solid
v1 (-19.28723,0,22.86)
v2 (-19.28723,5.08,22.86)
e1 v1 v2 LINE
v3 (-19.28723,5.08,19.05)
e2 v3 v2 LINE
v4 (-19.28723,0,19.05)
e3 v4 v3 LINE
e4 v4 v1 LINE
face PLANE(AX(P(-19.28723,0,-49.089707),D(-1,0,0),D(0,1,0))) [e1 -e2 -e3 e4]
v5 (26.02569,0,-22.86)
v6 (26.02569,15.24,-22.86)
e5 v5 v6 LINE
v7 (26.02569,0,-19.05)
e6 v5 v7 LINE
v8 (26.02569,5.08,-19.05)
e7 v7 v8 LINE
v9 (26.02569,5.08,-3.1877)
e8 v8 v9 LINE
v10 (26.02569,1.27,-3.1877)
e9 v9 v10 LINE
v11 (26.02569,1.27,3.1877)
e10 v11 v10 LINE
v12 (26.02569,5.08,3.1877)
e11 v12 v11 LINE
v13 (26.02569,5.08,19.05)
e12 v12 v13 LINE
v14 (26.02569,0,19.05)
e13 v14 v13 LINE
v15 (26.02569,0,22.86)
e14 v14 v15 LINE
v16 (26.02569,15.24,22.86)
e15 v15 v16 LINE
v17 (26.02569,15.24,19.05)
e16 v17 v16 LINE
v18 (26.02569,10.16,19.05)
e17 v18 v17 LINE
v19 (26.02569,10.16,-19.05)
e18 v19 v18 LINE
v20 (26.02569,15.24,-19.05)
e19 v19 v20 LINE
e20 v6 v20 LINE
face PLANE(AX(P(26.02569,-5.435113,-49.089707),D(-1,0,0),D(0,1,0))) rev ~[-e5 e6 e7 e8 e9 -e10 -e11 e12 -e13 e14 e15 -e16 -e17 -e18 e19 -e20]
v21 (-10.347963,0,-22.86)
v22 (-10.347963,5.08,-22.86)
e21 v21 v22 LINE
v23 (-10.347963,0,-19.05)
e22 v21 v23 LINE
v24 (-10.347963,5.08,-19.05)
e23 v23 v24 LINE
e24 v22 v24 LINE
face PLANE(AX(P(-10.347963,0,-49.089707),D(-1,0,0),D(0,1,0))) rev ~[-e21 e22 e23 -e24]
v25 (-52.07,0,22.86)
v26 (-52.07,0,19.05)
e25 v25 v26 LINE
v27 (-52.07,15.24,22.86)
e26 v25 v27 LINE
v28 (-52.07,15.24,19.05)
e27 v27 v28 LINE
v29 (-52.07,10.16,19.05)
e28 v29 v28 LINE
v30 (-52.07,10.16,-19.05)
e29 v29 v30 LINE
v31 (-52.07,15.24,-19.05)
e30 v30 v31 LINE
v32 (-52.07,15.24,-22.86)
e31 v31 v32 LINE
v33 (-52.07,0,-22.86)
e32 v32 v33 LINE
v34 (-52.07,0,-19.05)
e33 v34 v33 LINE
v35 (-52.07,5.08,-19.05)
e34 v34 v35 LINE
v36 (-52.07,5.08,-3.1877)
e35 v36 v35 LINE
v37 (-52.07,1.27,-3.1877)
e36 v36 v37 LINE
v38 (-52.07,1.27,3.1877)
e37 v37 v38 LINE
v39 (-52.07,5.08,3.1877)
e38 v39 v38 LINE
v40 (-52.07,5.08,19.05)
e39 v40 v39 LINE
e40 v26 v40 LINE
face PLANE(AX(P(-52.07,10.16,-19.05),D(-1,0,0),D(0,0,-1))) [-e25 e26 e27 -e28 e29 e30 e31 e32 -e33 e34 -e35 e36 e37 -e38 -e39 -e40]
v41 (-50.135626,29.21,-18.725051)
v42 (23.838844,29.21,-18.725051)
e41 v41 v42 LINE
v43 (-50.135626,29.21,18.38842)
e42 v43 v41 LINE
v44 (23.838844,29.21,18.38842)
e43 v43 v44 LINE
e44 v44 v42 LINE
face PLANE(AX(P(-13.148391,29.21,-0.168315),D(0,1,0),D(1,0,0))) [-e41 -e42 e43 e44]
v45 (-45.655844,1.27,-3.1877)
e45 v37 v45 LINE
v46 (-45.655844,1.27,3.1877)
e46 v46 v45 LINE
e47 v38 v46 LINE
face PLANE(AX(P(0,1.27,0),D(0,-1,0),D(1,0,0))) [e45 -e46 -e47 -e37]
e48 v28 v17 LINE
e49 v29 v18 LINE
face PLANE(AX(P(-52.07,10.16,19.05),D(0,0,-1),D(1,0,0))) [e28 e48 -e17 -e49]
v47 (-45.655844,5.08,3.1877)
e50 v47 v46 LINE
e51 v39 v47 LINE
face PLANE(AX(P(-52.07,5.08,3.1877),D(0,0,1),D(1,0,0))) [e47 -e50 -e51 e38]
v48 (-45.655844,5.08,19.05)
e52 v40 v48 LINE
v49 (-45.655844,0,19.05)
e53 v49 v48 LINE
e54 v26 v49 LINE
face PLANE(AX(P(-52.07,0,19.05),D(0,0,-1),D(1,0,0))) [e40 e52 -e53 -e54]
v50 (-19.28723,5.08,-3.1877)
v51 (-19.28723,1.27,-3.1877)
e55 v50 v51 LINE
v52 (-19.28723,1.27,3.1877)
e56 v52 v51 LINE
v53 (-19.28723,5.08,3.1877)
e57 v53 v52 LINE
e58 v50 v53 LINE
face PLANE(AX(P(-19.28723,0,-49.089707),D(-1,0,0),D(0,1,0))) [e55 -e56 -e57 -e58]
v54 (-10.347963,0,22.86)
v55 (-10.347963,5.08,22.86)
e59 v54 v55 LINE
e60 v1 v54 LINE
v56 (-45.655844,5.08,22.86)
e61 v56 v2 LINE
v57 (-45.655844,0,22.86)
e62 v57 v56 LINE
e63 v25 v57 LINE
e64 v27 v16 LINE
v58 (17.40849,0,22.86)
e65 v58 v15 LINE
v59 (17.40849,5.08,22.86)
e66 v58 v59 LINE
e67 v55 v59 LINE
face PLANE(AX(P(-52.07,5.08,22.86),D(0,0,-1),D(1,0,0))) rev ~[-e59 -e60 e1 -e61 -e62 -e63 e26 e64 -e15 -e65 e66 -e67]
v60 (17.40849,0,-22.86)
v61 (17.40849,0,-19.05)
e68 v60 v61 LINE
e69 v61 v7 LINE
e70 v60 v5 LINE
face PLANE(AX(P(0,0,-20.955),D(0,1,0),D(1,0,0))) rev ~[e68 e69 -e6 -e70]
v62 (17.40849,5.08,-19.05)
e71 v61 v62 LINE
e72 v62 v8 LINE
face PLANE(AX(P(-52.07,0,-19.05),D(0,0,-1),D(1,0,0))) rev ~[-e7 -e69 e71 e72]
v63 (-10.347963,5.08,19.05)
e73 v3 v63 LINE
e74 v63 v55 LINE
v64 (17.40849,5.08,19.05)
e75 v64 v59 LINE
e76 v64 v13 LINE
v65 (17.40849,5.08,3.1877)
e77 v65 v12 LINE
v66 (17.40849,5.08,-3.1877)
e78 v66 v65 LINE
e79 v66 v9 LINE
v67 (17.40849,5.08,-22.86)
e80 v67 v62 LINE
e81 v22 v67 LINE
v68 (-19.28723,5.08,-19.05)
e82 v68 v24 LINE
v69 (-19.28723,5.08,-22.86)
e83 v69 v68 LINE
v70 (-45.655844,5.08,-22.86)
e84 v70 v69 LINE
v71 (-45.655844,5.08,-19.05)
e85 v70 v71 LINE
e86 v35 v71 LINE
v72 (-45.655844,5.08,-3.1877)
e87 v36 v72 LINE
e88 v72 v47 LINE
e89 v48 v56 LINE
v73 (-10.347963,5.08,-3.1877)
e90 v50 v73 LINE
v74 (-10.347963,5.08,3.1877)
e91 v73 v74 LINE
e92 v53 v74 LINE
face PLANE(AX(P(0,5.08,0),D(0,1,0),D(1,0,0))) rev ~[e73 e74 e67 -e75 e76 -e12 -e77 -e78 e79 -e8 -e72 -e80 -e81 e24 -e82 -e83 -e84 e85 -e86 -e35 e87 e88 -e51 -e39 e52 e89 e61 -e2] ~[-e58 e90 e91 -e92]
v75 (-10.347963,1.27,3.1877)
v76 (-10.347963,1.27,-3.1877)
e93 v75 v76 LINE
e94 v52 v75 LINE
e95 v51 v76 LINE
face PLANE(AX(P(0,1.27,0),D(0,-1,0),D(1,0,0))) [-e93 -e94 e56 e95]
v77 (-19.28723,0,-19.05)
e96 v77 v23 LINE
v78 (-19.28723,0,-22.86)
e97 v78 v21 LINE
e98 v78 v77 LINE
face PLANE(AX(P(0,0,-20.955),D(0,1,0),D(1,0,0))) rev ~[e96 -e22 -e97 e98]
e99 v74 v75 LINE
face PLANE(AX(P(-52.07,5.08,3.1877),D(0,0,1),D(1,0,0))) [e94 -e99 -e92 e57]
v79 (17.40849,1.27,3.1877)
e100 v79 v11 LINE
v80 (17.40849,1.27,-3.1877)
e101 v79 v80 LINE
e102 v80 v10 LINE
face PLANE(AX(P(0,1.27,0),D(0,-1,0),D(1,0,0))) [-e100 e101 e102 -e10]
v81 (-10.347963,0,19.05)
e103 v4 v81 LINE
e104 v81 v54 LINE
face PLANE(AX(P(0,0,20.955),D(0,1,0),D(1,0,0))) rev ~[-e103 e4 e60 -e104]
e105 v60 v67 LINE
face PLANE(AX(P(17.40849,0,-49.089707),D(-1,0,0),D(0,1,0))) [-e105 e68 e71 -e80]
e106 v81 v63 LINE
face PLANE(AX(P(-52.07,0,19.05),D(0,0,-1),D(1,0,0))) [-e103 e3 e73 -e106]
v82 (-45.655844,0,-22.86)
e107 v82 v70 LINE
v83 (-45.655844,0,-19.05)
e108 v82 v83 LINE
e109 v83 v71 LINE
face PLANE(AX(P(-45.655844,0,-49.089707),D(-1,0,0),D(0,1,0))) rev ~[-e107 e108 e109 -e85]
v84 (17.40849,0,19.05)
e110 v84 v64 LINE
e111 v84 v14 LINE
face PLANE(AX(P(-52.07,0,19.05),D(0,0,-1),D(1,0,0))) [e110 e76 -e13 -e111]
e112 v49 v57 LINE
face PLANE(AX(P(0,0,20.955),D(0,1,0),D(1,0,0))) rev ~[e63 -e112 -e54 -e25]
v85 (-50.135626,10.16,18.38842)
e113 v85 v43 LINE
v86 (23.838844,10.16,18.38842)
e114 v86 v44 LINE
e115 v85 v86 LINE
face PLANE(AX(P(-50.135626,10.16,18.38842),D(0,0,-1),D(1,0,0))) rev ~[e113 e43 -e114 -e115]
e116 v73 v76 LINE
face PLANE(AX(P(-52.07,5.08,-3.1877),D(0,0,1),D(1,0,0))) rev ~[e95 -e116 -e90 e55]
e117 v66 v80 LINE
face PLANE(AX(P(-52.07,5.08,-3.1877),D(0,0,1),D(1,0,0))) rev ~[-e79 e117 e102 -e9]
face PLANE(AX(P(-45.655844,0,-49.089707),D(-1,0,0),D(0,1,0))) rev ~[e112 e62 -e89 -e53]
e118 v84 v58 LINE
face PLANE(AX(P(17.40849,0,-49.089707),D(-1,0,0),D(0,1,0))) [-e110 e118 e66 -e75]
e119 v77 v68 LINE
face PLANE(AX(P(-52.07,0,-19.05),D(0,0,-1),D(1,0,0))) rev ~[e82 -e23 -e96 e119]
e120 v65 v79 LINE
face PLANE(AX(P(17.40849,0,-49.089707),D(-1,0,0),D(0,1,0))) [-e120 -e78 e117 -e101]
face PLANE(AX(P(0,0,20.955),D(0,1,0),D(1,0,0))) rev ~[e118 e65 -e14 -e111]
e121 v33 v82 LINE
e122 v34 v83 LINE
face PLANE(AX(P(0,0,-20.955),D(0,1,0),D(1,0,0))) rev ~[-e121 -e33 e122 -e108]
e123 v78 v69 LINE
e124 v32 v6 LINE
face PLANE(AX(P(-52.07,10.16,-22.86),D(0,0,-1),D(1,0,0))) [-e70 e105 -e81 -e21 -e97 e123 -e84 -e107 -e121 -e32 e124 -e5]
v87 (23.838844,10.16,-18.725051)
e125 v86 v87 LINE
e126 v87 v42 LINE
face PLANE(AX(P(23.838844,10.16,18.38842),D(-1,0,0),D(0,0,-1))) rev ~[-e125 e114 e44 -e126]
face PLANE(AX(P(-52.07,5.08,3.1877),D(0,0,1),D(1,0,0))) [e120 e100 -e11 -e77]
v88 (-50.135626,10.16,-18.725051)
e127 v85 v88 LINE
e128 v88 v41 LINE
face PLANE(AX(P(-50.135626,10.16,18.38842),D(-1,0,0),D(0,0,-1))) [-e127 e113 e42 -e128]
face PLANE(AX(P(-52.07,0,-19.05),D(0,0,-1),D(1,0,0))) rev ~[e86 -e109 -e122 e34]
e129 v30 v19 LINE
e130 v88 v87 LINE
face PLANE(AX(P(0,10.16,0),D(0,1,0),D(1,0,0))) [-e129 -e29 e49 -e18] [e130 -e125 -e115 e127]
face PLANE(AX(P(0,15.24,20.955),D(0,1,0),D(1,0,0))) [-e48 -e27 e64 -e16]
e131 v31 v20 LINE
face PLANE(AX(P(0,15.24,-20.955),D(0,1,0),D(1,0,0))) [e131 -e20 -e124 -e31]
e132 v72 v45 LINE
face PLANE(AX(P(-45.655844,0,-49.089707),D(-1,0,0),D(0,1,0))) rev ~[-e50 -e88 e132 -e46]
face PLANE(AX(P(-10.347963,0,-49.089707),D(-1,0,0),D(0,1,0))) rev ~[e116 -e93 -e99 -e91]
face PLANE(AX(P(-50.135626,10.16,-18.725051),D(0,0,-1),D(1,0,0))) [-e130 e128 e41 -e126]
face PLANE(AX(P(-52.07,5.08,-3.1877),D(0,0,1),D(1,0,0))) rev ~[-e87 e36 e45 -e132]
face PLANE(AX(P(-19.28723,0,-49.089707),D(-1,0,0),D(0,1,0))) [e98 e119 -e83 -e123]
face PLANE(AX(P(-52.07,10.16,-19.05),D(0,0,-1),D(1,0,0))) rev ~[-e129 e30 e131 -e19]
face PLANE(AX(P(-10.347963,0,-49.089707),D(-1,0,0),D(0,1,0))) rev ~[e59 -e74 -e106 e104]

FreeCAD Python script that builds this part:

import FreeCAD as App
import Part
import Sketcher
Q = App.Units.Quantity

doc = App.newDocument("Part")
body = doc.addObject("PartDesign::Body", "Body")

# Sketch on XZ plane
sketch1 = doc.addObject("Sketcher::SketchObject", "Sketch")
body.addObject(sketch1)
sketch1.AttachmentSupport = (doc.XZ_Plane, [""])
sketch1.MapMode = "FlatFace"
sketch1.addGeometry([
    Part.LineSegment(App.Vector(-52.1, 19.1, 0), App.Vector(-52.1, 22.9, 0)),
    Part.LineSegment(App.Vector(-52.1, 22.9, 0), App.Vector(52.1, 22.9, 0)),
    Part.LineSegment(App.Vector(52.1, 22.9, 0), App.Vector(52.1, 19.1, 0)),
    Part.LineSegment(App.Vector(52.1, 19.1, 0), App.Vector(-52.1, 19.1, 0)),
], False)
sketch1.addConstraint([
    Sketcher.Constraint("Coincident", 0, 2, 1, 1),
    Sketcher.Constraint("Coincident", 1, 2, 2, 1),
    Sketcher.Constraint("Coincident", 2, 2, 3, 1),
    Sketcher.Constraint("Coincident", 3, 2, 0, 1),
    Sketcher.Constraint("Vertical", 0),
    Sketcher.Constraint("Horizontal", 1),
    Sketcher.Constraint("Vertical", 2),
    Sketcher.Constraint("Horizontal", 3),
    Sketcher.Constraint("DistanceX", 1, 1, 1, 2, Q("4.1 in")),
    Sketcher.Constraint("DistanceY", 0, 1, 0, 2, Q("0.15 in")),
    Sketcher.Constraint("DistanceY", -1, 1, 0, 2, Q("0.9 in")),
    Sketcher.Constraint("DistanceX", 0, 2, -1, 1, Q("2.05 in")),
])
pad1 = doc.addObject("PartDesign::Pad", "Pad")
body.addObject(pad1)
pad1.Profile = sketch1
pad1.Length = Q("0.2 in")
pad1.Reversed = True
body2 = doc.addObject("PartDesign::Body", "Body001")

# Sketch on XZ plane
sketch2 = doc.addObject("Sketcher::SketchObject", "Sketch001")
body2.addObject(sketch2)
sketch2.AttachmentSupport = (doc.getObject("XZ_Plane001"), [""])
sketch2.MapMode = "FlatFace"
sketch2.addGeometry([
    Part.LineSegment(App.Vector(-52.1, -22.9, 0), App.Vector(-52.1, -19.1, 0)),
    Part.LineSegment(App.Vector(-52.1, -19.1, 0), App.Vector(52.1, -19.1, 0)),
    Part.LineSegment(App.Vector(52.1, -19.1, 0), App.Vector(52.1, -22.9, 0)),
    Part.LineSegment(App.Vector(52.1, -22.9, 0), App.Vector(-52.1, -22.9, 0)),
], False)
sketch2.addConstraint([
    Sketcher.Constraint("Coincident", 0, 2, 1, 1),
    Sketcher.Constraint("Coincident", 1, 2, 2, 1),
    Sketcher.Constraint("Coincident", 2, 2, 3, 1),
    Sketcher.Constraint("Coincident", 3, 2, 0, 1),
    Sketcher.Constraint("Vertical", 0),
    Sketcher.Constraint("Horizontal", 1),
    Sketcher.Constraint("Vertical", 2),
    Sketcher.Constraint("Horizontal", 3),
    Sketcher.Constraint("DistanceX", 1, 1, 1, 2, Q("4.1 in")),
    Sketcher.Constraint("DistanceY", 0, 1, 0, 2, Q("0.15 in")),
    Sketcher.Constraint("DistanceY", 2, 2, -1, 1, Q("0.9 in")),
    Sketcher.Constraint("DistanceX", 0, 2, -1, 1, Q("2.05 in")),
])
pad2 = doc.addObject("PartDesign::Pad", "Pad001")
body2.addObject(pad2)
pad2.Profile = sketch2
pad2.Length = Q("0.2 in")
pad2.Reversed = True
body.AllowCompound = True
doc.recompute()

boolean = doc.addObject("PartDesign::Boolean", "Boolean")
body.addObject(boolean)
boolean.Type = "Fuse"
boolean.addObjects([body2])

# Sketch on XZ plane
sketch3 = doc.addObject("Sketcher::SketchObject", "Sketch002")
body.addObject(sketch3)
sketch3.AttachmentSupport = (doc.XZ_Plane, [""])
sketch3.MapMode = "FlatFace"
sketch3.AttachmentOffset = App.Placement(App.Vector(0, 0, -0.2 * 25.4), App.Rotation())
sketch3.addGeometry([
    Part.LineSegment(App.Vector(-52, -23, 0), App.Vector(-52, 23, 0)),
    Part.LineSegment(App.Vector(-52, 23, 0), App.Vector(52, 23, 0)),
    Part.LineSegment(App.Vector(52, 23, 0), App.Vector(52, -23, 0)),
    Part.LineSegment(App.Vector(52, -23, 0), App.Vector(-52, -23, 0)),
], False)
sketch3.addConstraint([
    Sketcher.Constraint("Coincident", 0, 2, 1, 1),
    Sketcher.Constraint("Coincident", 1, 2, 2, 1),
    Sketcher.Constraint("Coincident", 2, 2, 3, 1),
    Sketcher.Constraint("Coincident", 3, 2, 0, 1),
    Sketcher.Constraint("Vertical", 0),
    Sketcher.Constraint("Horizontal", 1),
    Sketcher.Constraint("Vertical", 2),
    Sketcher.Constraint("Horizontal", 3),
    Sketcher.Constraint("Symmetric", 0, 2, 2, 2, -1, 1),
    Sketcher.Constraint("DistanceX", 1, 1, 1, 2, Q("4.1 in")),
    Sketcher.Constraint("DistanceY", 0, 1, 0, 2, Q("1.8 in")),
])
pad3 = doc.addObject("PartDesign::Pad", "Pad002")
body.addObject(pad3)
pad3.Profile = sketch3
pad3.Length = Q("0.2 in")
pad3.Reversed = True

# Sketch on XZ plane
sketch4 = doc.addObject("Sketcher::SketchObject", "Sketch003")
body.addObject(sketch4)
sketch4.AttachmentSupport = (doc.XZ_Plane, [""])
sketch4.MapMode = "FlatFace"
sketch4.AttachmentOffset = App.Placement(App.Vector(0, 0, -0.4 * 25.4), App.Rotation())
sketch4.addGeometry([
    Part.LineSegment(App.Vector(-52.1, -22.9, 0), App.Vector(-52.1, -19.1, 0)),  # 0
    Part.LineSegment(App.Vector(-52.1, -19.1, 0), App.Vector(52.1, -19.1, 0)),  # 1
    Part.LineSegment(App.Vector(52.1, -19.1, 0), App.Vector(52.1, -22.9, 0)),  # 2
    Part.LineSegment(App.Vector(52.1, -22.9, 0), App.Vector(-52.1, -22.9, 0)),  # 3
    Part.LineSegment(App.Vector(-52.1, 19.1, 0), App.Vector(-52.1, 22.9, 0)),  # 4
    Part.LineSegment(App.Vector(-52.1, 22.9, 0), App.Vector(52.1, 22.9, 0)),  # 5
    Part.LineSegment(App.Vector(52.1, 22.9, 0), App.Vector(52.1, 19.1, 0)),  # 6
    Part.LineSegment(App.Vector(52.1, 19.1, 0), App.Vector(-52.1, 19.1, 0)),  # 7
], False)
sketch4.addConstraint([
    Sketcher.Constraint("Coincident", 0, 2, 1, 1),
    Sketcher.Constraint("Coincident", 1, 2, 2, 1),
    Sketcher.Constraint("Coincident", 2, 2, 3, 1),
    Sketcher.Constraint("Coincident", 3, 2, 0, 1),
    Sketcher.Constraint("Coincident", 4, 2, 5, 1),
    Sketcher.Constraint("Coincident", 5, 2, 6, 1),
    Sketcher.Constraint("Coincident", 6, 2, 7, 1),
    Sketcher.Constraint("Coincident", 7, 2, 4, 1),
    Sketcher.Constraint("Vertical", 0),
    Sketcher.Constraint("Horizontal", 1),
    Sketcher.Constraint("Vertical", 2),
    Sketcher.Constraint("Horizontal", 3),
    Sketcher.Constraint("Vertical", 4),
    Sketcher.Constraint("Horizontal", 5),
    Sketcher.Constraint("Vertical", 6),
    Sketcher.Constraint("Horizontal", 7),
    Sketcher.Constraint("Symmetric", 2, 2, 4, 2, -1, 1),
    Sketcher.Constraint("Symmetric", 0, 2, 6, 2, -1, 1),
    Sketcher.Constraint("Vertical", 3, 2, 4, 2),
    Sketcher.Constraint("DistanceX", 1, 1, 1, 2, Q("4.1 in")),
    Sketcher.Constraint("DistanceY", 0, 1, 0, 2, Q("0.15 in")),
    Sketcher.Constraint("DistanceY", 2, 2, -1, 1, Q("0.9 in")),
])
pad4 = doc.addObject("PartDesign::Pad", "Pad003")
body.addObject(pad4)
pad4.Profile = sketch4
pad4.Length = Q("0.2 in")
pad4.Reversed = True

# Sketch on XZ plane
sketch5 = doc.addObject("Sketcher::SketchObject", "Sketch004")
body.addObject(sketch5)
sketch5.AttachmentSupport = (doc.XZ_Plane, [""])
sketch5.MapMode = "FlatFace"
sketch5.AttachmentOffset = App.Placement(App.Vector(0, 0, -0.2 * 25.4), App.Rotation())
sketch5.addGeometry([
    Part.LineSegment(App.Vector(-52, 3, 0), App.Vector(-52, -3, 0)),
    Part.LineSegment(App.Vector(-52, -3, 0), App.Vector(52, -3, 0)),
    Part.LineSegment(App.Vector(52, -3, 0), App.Vector(52, 3, 0)),
    Part.LineSegment(App.Vector(52, 3, 0), App.Vector(-52, 3, 0)),
], False)
sketch5.addConstraint([
    Sketcher.Constraint("Coincident", 0, 2, 1, 1),
    Sketcher.Constraint("Coincident", 1, 2, 2, 1),
    Sketcher.Constraint("Coincident", 2, 2, 3, 1),
    Sketcher.Constraint("Coincident", 3, 2, 0, 1),
    Sketcher.Constraint("Vertical", 0),
    Sketcher.Constraint("Horizontal", 1),
    Sketcher.Constraint("Vertical", 2),
    Sketcher.Constraint("Horizontal", 3),
    Sketcher.Constraint("Symmetric", 0, 2, 2, 2, -1, 1),
    Sketcher.Constraint("DistanceX", 1, 1, 1, 2, Q("4.1 in")),
    Sketcher.Constraint("DistanceY", 0, 2, 0, 1, Q("0.251 in")),
])
pad5 = doc.addObject("PartDesign::Pad", "Pad004")
body.addObject(pad5)
pad5.Profile = sketch5
pad5.Length = Q("0.15 in")

# Sketch on XY plane
sketch6 = doc.addObject("Sketcher::SketchObject", "Sketch005")
body.addObject(sketch6)
sketch6.AttachmentSupport = (doc.XY_Plane, [""])
sketch6.MapMode = "FlatFace"
sketch6.AttachmentOffset = App.Placement(App.Vector(0, 0, 0.9 * 25.4), App.Rotation())
sketch6.addGeometry([
    Part.LineSegment(App.Vector(-46, 5, 0), App.Vector(-46, 0, 0)),  # 0
    Part.LineSegment(App.Vector(-46, 0, 0), App.Vector(-19, 0, 0)),  # 1
    Part.LineSegment(App.Vector(-19, 0, 0), App.Vector(-19, 5, 0)),  # 2
    Part.LineSegment(App.Vector(-19, 5, 0), App.Vector(-46, 5, 0)),  # 3
    Part.LineSegment(App.Vector(-10, 5, 0), App.Vector(-10, 0, 0)),  # 4
    Part.LineSegment(App.Vector(-10, 0, 0), App.Vector(17, 0, 0)),  # 5
    Part.LineSegment(App.Vector(17, 0, 0), App.Vector(17, 5, 0)),  # 6
    Part.LineSegment(App.Vector(17, 5, 0), App.Vector(-10, 5, 0)),  # 7
    Part.LineSegment(App.Vector(26, 21, 0), App.Vector(26, -5, 0)),  # 8
    Part.LineSegment(App.Vector(26, -5, 0), App.Vector(56, -5, 0)),  # 9
    Part.LineSegment(App.Vector(56, -5, 0), App.Vector(56, 21, 0)),  # 10
    Part.LineSegment(App.Vector(56, 21, 0), App.Vector(26, 21, 0)),  # 11
], False)
sketch6.addConstraint([
    Sketcher.Constraint("Coincident", 0, 2, 1, 1),
    Sketcher.Constraint("Coincident", 1, 2, 2, 1),
    Sketcher.Constraint("Coincident", 2, 2, 3, 1),
    Sketcher.Constraint("Coincident", 3, 2, 0, 1),
    Sketcher.Constraint("Coincident", 4, 2, 5, 1),
    Sketcher.Constraint("Coincident", 5, 2, 6, 1),
    Sketcher.Constraint("Coincident", 6, 2, 7, 1),
    Sketcher.Constraint("Coincident", 7, 2, 4, 1),
    Sketcher.Constraint("Coincident", 8, 2, 9, 1),
    Sketcher.Constraint("Coincident", 9, 2, 10, 1),
    Sketcher.Constraint("Coincident", 10, 2, 11, 1),
    Sketcher.Constraint("Coincident", 11, 2, 8, 1),
    Sketcher.Constraint("Vertical", 0),
    Sketcher.Constraint("Horizontal", 1),
    Sketcher.Constraint("Vertical", 2),
    Sketcher.Constraint("Horizontal", 3),
    Sketcher.Constraint("Vertical", 4),
    Sketcher.Constraint("Horizontal", 5),
    Sketcher.Constraint("Vertical", 6),
    Sketcher.Constraint("Horizontal", 7),
    Sketcher.Constraint("Vertical", 8),
    Sketcher.Constraint("Horizontal", 9),
    Sketcher.Constraint("Vertical", 10),
    Sketcher.Constraint("Horizontal", 11),
    Sketcher.Constraint("PointOnObject", 0, 2, -1),
    Sketcher.Constraint("PointOnObject", 4, 2, -1),
    Sketcher.Constraint("Horizontal", 3, 2, 6, 2),
    Sketcher.Constraint("DistanceY", 0, 2, 0, 1, Q("0.2 in")),
    Sketcher.Constraint("DistanceX", 4, 2, -1, 1, Q("0.4074001 in")),
    Sketcher.Constraint("DistanceX", 5, 2, 8, 2, 8.617201),
    Sketcher.Constraint("DistanceX", 1, 1, 1, 2, 26.368614),
    Sketcher.Constraint("DistanceX", 5, 1, 5, 2, 27.756452),
    Sketcher.Constraint("DistanceX", 9, 1, 9, 2, 30.305436),
    Sketcher.Constraint("DistanceY", 8, 2, 8, 1, 26.045247),
    Sketcher.Constraint("DistanceX", 1, 2, -1, 1, 19.28723),
    Sketcher.Constraint("DistanceY", 8, 2, -1, 1, 5.435113),
])
pocket1 = doc.addObject("PartDesign::Pocket", "Pocket")
body.addObject(pocket1)
pocket1.Profile = sketch6
pocket1.Type = "ThroughAll"
pocket1.Midplane = True

# Sketch on XZ plane
sketch7 = doc.addObject("Sketcher::SketchObject", "Sketch006")
body.addObject(sketch7)
sketch7.AttachmentSupport = (doc.XZ_Plane, [""])
sketch7.MapMode = "FlatFace"
sketch7.AttachmentOffset = App.Placement(App.Vector(0, 0, -0.4 * 25.4), App.Rotation())
sketch7.addGeometry([
    Part.LineSegment(App.Vector(-50, -19, 0), App.Vector(-50, 18, 0)),
    Part.LineSegment(App.Vector(-50, 18, 0), App.Vector(24, 18, 0)),
    Part.LineSegment(App.Vector(24, 18, 0), App.Vector(24, -19, 0)),
    Part.LineSegment(App.Vector(24, -19, 0), App.Vector(-50, -19, 0)),
], False)
sketch7.addConstraint([
    Sketcher.Constraint("Coincident", 0, 2, 1, 1),
    Sketcher.Constraint("Coincident", 1, 2, 2, 1),
    Sketcher.Constraint("Coincident", 2, 2, 3, 1),
    Sketcher.Constraint("Coincident", 3, 2, 0, 1),
    Sketcher.Constraint("Vertical", 0),
    Sketcher.Constraint("Horizontal", 1),
    Sketcher.Constraint("Vertical", 2),
    Sketcher.Constraint("Horizontal", 3),
    Sketcher.Constraint("DistanceX", 1, 1, 1, 2, 73.97447),
    Sketcher.Constraint("DistanceY", 0, 1, 0, 2, 37.113471),
    Sketcher.Constraint("DistanceY", -1, 1, 0, 2, 18.38842),
    Sketcher.Constraint("DistanceX", 0, 2, -1, 1, 50.135626),
])
pad6 = doc.addObject("PartDesign::Pad", "Pad005")
body.addObject(pad6)
pad6.Profile = sketch7
pad6.Length = Q("0.75 in")
pad6.Reversed = True

doc.recompute()
